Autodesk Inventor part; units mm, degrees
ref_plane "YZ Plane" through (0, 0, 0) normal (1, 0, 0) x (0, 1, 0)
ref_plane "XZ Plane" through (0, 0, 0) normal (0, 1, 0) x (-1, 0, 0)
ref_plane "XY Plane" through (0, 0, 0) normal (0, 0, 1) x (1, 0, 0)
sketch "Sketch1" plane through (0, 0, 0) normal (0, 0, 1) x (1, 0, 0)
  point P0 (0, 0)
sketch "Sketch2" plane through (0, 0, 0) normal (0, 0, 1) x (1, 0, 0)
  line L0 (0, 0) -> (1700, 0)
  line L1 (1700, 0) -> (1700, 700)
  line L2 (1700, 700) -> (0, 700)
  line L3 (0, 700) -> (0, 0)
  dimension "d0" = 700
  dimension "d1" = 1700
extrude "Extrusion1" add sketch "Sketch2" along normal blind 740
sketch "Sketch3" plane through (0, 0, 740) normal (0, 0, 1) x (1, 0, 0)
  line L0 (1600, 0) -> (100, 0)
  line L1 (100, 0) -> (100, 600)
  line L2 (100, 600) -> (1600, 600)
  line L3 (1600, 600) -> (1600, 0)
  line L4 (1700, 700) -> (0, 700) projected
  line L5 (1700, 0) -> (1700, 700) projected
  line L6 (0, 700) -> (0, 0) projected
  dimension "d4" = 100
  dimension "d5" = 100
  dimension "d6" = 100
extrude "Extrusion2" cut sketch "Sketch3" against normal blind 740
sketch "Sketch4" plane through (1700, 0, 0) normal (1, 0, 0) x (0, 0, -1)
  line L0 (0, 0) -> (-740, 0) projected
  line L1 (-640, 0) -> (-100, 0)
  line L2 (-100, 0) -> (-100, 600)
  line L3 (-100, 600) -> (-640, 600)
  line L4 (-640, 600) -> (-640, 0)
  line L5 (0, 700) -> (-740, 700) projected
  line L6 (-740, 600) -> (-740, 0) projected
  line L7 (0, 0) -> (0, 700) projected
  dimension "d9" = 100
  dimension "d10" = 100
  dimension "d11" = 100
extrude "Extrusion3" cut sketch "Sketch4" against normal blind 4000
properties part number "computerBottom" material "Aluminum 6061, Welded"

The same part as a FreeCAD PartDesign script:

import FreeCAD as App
import Part
import Sketcher

doc = App.newDocument("Part")
params = doc.addObject("Spreadsheet::Sheet", "Params")
for row, (alias, value) in enumerate([
    ("sketch1_width", "1700 mm"),
    ("sketch1_height", "700 mm"),
    ("pad1_length", "740 mm"),
    ("sketch2_width", "1500 mm"),
    ("sketch2_height", "600 mm"),
    ("pocket1_length", "740 mm"),
    ("sketch3_width", "600 mm"),
    ("sketch3_height", "540 mm"),
    ("pocket2_length", "4000 mm"),
], start=1):
    params.set(f"A{row}", alias)
    params.set(f"B{row}", "=" + value)
    params.setAlias(f"B{row}", alias)

body = doc.addObject("PartDesign::Body", "Body")

# Sketch on XY plane
sketch1 = body.newObject("Sketcher::SketchObject", "Sketch")
sketch1.AttachmentSupport = (doc.getObject("XY_Plane"), [""])
sketch1.MapMode = "FlatFace"
sketch1.addGeometry(Part.LineSegment(App.Vector(0, 700, 0), App.Vector(0, 0, 0)), False)
sketch1.addGeometry(Part.LineSegment(App.Vector(0, 0, 0), App.Vector(1700, 0, 0)), False)
sketch1.addGeometry(Part.LineSegment(App.Vector(1700, 0, 0), App.Vector(1700, 700, 0)), False)
sketch1.addGeometry(Part.LineSegment(App.Vector(1700, 700, 0), App.Vector(0, 700, 0)), False)
sketch1.addConstraint(Sketcher.Constraint("Coincident", 0, 2, 1, 1))
sketch1.addConstraint(Sketcher.Constraint("Coincident", 1, 2, 2, 1))
sketch1.addConstraint(Sketcher.Constraint("Coincident", 2, 2, 3, 1))
sketch1.addConstraint(Sketcher.Constraint("Coincident", 3, 2, 0, 1))
sketch1.addConstraint(Sketcher.Constraint("Vertical", 0))
sketch1.addConstraint(Sketcher.Constraint("Horizontal", 1))
sketch1.addConstraint(Sketcher.Constraint("Vertical", 2))
sketch1.addConstraint(Sketcher.Constraint("Horizontal", 3))
sketch1.addConstraint(Sketcher.Constraint("Coincident", 0, 2, -1, 1))
sketch1.addConstraint(Sketcher.Constraint("DistanceX", 1, 1, 1, 2, 1700.0))
sketch1.addConstraint(Sketcher.Constraint("DistanceY", 0, 2, 0, 1, 700.0))
sketch1.setExpression("Constraints[9]", "Params.sketch1_width")
sketch1.setExpression("Constraints[10]", "Params.sketch1_height")
pad1 = body.newObject("PartDesign::Pad", "Pad")
pad1.Profile = sketch1
pad1.setExpression("Length", "Params.pad1_length")

# Sketch on XY plane
sketch2 = body.newObject("Sketcher::SketchObject", "Sketch001")
sketch2.AttachmentSupport = (doc.getObject("XY_Plane"), [""])
sketch2.MapMode = "FlatFace"
sketch2.AttachmentOffset = App.Placement(App.Vector(0, 0, 740), App.Rotation())
sketch2.addGeometry(Part.LineSegment(App.Vector(100, 0, 0), App.Vector(1600, 0, 0)), False)
sketch2.addGeometry(Part.LineSegment(App.Vector(1600, 0, 0), App.Vector(1600, 600, 0)), False)
sketch2.addGeometry(Part.LineSegment(App.Vector(1600, 600, 0), App.Vector(100, 600, 0)), False)
sketch2.addGeometry(Part.LineSegment(App.Vector(100, 600, 0), App.Vector(100, 0, 0)), False)
sketch2.addConstraint(Sketcher.Constraint("Coincident", 0, 2, 1, 1))
sketch2.addConstraint(Sketcher.Constraint("Coincident", 1, 2, 2, 1))
sketch2.addConstraint(Sketcher.Constraint("Coincident", 2, 2, 3, 1))
sketch2.addConstraint(Sketcher.Constraint("Coincident", 3, 2, 0, 1))
sketch2.addConstraint(Sketcher.Constraint("Horizontal", 0))
sketch2.addConstraint(Sketcher.Constraint("Vertical", 1))
sketch2.addConstraint(Sketcher.Constraint("Horizontal", 2))
sketch2.addConstraint(Sketcher.Constraint("Vertical", 3))
sketch2.addConstraint(Sketcher.Constraint("PointOnObject", 0, 2, -1))
sketch2.addConstraint(Sketcher.Constraint("DistanceX", -1, 1, 2, 2, 100.0))
sketch2.addConstraint(Sketcher.Constraint("DistanceX", 0, 1, 0, 2, 1500.0))
sketch2.addConstraint(Sketcher.Constraint("DistanceY", 1, 1, 1, 2, 600.0))
sketch2.setExpression("Constraints[10]", "Params.sketch2_width")
sketch2.setExpression("Constraints[11]", "Params.sketch2_height")
pocket1 = body.newObject("PartDesign::Pocket", "Pocket")
pocket1.Profile = sketch2
pocket1.setExpression("Length", "Params.pocket1_length")

# Sketch on YZ plane
sketch3 = body.newObject("Sketcher::SketchObject", "Sketch002")
sketch3.AttachmentSupport = (doc.getObject("YZ_Plane"), [""])
sketch3.MapMode = "FlatFace"
sketch3.AttachmentOffset = App.Placement(App.Vector(0, 0, 1700), App.Rotation())
sketch3.addGeometry(Part.LineSegment(App.Vector(0, 640, 0), App.Vector(0, 100, 0)), False)
sketch3.addGeometry(Part.LineSegment(App.Vector(0, 100, 0), App.Vector(600, 100, 0)), False)
sketch3.addGeometry(Part.LineSegment(App.Vector(600, 100, 0), App.Vector(600, 640, 0)), False)
sketch3.addGeometry(Part.LineSegment(App.Vector(600, 640, 0), App.Vector(0, 640, 0)), False)
sketch3.addConstraint(Sketcher.Constraint("Coincident", 0, 2, 1, 1))
sketch3.addConstraint(Sketcher.Constraint("Coincident", 1, 2, 2, 1))
sketch3.addConstraint(Sketcher.Constraint("Coincident", 2, 2, 3, 1))
sketch3.addConstraint(Sketcher.Constraint("Coincident", 3, 2, 0, 1))
sketch3.addConstraint(Sketcher.Constraint("Vertical", 0))
sketch3.addConstraint(Sketcher.Constraint("Horizontal", 1))
sketch3.addConstraint(Sketcher.Constraint("Vertical", 2))
sketch3.addConstraint(Sketcher.Constraint("Horizontal", 3))
sketch3.addConstraint(Sketcher.Constraint("PointOnObject", 0, 2, -2))
sketch3.addConstraint(Sketcher.Constraint("DistanceY", -1, 1, 0, 2, 100.0))
sketch3.addConstraint(Sketcher.Constraint("DistanceX", 1, 1, 1, 2, 600.0))
sketch3.addConstraint(Sketcher.Constraint("DistanceY", 0, 2, 0, 1, 540.0))
sketch3.setExpression("Constraints[10]", "Params.sketch3_width")
sketch3.setExpression("Constraints[11]", "Params.sketch3_height")
pocket2 = body.newObject("PartDesign::Pocket", "Pocket001")
pocket2.Profile = sketch3
pocket2.setExpression("Length", "Params.pocket2_length")

doc.recompute()
